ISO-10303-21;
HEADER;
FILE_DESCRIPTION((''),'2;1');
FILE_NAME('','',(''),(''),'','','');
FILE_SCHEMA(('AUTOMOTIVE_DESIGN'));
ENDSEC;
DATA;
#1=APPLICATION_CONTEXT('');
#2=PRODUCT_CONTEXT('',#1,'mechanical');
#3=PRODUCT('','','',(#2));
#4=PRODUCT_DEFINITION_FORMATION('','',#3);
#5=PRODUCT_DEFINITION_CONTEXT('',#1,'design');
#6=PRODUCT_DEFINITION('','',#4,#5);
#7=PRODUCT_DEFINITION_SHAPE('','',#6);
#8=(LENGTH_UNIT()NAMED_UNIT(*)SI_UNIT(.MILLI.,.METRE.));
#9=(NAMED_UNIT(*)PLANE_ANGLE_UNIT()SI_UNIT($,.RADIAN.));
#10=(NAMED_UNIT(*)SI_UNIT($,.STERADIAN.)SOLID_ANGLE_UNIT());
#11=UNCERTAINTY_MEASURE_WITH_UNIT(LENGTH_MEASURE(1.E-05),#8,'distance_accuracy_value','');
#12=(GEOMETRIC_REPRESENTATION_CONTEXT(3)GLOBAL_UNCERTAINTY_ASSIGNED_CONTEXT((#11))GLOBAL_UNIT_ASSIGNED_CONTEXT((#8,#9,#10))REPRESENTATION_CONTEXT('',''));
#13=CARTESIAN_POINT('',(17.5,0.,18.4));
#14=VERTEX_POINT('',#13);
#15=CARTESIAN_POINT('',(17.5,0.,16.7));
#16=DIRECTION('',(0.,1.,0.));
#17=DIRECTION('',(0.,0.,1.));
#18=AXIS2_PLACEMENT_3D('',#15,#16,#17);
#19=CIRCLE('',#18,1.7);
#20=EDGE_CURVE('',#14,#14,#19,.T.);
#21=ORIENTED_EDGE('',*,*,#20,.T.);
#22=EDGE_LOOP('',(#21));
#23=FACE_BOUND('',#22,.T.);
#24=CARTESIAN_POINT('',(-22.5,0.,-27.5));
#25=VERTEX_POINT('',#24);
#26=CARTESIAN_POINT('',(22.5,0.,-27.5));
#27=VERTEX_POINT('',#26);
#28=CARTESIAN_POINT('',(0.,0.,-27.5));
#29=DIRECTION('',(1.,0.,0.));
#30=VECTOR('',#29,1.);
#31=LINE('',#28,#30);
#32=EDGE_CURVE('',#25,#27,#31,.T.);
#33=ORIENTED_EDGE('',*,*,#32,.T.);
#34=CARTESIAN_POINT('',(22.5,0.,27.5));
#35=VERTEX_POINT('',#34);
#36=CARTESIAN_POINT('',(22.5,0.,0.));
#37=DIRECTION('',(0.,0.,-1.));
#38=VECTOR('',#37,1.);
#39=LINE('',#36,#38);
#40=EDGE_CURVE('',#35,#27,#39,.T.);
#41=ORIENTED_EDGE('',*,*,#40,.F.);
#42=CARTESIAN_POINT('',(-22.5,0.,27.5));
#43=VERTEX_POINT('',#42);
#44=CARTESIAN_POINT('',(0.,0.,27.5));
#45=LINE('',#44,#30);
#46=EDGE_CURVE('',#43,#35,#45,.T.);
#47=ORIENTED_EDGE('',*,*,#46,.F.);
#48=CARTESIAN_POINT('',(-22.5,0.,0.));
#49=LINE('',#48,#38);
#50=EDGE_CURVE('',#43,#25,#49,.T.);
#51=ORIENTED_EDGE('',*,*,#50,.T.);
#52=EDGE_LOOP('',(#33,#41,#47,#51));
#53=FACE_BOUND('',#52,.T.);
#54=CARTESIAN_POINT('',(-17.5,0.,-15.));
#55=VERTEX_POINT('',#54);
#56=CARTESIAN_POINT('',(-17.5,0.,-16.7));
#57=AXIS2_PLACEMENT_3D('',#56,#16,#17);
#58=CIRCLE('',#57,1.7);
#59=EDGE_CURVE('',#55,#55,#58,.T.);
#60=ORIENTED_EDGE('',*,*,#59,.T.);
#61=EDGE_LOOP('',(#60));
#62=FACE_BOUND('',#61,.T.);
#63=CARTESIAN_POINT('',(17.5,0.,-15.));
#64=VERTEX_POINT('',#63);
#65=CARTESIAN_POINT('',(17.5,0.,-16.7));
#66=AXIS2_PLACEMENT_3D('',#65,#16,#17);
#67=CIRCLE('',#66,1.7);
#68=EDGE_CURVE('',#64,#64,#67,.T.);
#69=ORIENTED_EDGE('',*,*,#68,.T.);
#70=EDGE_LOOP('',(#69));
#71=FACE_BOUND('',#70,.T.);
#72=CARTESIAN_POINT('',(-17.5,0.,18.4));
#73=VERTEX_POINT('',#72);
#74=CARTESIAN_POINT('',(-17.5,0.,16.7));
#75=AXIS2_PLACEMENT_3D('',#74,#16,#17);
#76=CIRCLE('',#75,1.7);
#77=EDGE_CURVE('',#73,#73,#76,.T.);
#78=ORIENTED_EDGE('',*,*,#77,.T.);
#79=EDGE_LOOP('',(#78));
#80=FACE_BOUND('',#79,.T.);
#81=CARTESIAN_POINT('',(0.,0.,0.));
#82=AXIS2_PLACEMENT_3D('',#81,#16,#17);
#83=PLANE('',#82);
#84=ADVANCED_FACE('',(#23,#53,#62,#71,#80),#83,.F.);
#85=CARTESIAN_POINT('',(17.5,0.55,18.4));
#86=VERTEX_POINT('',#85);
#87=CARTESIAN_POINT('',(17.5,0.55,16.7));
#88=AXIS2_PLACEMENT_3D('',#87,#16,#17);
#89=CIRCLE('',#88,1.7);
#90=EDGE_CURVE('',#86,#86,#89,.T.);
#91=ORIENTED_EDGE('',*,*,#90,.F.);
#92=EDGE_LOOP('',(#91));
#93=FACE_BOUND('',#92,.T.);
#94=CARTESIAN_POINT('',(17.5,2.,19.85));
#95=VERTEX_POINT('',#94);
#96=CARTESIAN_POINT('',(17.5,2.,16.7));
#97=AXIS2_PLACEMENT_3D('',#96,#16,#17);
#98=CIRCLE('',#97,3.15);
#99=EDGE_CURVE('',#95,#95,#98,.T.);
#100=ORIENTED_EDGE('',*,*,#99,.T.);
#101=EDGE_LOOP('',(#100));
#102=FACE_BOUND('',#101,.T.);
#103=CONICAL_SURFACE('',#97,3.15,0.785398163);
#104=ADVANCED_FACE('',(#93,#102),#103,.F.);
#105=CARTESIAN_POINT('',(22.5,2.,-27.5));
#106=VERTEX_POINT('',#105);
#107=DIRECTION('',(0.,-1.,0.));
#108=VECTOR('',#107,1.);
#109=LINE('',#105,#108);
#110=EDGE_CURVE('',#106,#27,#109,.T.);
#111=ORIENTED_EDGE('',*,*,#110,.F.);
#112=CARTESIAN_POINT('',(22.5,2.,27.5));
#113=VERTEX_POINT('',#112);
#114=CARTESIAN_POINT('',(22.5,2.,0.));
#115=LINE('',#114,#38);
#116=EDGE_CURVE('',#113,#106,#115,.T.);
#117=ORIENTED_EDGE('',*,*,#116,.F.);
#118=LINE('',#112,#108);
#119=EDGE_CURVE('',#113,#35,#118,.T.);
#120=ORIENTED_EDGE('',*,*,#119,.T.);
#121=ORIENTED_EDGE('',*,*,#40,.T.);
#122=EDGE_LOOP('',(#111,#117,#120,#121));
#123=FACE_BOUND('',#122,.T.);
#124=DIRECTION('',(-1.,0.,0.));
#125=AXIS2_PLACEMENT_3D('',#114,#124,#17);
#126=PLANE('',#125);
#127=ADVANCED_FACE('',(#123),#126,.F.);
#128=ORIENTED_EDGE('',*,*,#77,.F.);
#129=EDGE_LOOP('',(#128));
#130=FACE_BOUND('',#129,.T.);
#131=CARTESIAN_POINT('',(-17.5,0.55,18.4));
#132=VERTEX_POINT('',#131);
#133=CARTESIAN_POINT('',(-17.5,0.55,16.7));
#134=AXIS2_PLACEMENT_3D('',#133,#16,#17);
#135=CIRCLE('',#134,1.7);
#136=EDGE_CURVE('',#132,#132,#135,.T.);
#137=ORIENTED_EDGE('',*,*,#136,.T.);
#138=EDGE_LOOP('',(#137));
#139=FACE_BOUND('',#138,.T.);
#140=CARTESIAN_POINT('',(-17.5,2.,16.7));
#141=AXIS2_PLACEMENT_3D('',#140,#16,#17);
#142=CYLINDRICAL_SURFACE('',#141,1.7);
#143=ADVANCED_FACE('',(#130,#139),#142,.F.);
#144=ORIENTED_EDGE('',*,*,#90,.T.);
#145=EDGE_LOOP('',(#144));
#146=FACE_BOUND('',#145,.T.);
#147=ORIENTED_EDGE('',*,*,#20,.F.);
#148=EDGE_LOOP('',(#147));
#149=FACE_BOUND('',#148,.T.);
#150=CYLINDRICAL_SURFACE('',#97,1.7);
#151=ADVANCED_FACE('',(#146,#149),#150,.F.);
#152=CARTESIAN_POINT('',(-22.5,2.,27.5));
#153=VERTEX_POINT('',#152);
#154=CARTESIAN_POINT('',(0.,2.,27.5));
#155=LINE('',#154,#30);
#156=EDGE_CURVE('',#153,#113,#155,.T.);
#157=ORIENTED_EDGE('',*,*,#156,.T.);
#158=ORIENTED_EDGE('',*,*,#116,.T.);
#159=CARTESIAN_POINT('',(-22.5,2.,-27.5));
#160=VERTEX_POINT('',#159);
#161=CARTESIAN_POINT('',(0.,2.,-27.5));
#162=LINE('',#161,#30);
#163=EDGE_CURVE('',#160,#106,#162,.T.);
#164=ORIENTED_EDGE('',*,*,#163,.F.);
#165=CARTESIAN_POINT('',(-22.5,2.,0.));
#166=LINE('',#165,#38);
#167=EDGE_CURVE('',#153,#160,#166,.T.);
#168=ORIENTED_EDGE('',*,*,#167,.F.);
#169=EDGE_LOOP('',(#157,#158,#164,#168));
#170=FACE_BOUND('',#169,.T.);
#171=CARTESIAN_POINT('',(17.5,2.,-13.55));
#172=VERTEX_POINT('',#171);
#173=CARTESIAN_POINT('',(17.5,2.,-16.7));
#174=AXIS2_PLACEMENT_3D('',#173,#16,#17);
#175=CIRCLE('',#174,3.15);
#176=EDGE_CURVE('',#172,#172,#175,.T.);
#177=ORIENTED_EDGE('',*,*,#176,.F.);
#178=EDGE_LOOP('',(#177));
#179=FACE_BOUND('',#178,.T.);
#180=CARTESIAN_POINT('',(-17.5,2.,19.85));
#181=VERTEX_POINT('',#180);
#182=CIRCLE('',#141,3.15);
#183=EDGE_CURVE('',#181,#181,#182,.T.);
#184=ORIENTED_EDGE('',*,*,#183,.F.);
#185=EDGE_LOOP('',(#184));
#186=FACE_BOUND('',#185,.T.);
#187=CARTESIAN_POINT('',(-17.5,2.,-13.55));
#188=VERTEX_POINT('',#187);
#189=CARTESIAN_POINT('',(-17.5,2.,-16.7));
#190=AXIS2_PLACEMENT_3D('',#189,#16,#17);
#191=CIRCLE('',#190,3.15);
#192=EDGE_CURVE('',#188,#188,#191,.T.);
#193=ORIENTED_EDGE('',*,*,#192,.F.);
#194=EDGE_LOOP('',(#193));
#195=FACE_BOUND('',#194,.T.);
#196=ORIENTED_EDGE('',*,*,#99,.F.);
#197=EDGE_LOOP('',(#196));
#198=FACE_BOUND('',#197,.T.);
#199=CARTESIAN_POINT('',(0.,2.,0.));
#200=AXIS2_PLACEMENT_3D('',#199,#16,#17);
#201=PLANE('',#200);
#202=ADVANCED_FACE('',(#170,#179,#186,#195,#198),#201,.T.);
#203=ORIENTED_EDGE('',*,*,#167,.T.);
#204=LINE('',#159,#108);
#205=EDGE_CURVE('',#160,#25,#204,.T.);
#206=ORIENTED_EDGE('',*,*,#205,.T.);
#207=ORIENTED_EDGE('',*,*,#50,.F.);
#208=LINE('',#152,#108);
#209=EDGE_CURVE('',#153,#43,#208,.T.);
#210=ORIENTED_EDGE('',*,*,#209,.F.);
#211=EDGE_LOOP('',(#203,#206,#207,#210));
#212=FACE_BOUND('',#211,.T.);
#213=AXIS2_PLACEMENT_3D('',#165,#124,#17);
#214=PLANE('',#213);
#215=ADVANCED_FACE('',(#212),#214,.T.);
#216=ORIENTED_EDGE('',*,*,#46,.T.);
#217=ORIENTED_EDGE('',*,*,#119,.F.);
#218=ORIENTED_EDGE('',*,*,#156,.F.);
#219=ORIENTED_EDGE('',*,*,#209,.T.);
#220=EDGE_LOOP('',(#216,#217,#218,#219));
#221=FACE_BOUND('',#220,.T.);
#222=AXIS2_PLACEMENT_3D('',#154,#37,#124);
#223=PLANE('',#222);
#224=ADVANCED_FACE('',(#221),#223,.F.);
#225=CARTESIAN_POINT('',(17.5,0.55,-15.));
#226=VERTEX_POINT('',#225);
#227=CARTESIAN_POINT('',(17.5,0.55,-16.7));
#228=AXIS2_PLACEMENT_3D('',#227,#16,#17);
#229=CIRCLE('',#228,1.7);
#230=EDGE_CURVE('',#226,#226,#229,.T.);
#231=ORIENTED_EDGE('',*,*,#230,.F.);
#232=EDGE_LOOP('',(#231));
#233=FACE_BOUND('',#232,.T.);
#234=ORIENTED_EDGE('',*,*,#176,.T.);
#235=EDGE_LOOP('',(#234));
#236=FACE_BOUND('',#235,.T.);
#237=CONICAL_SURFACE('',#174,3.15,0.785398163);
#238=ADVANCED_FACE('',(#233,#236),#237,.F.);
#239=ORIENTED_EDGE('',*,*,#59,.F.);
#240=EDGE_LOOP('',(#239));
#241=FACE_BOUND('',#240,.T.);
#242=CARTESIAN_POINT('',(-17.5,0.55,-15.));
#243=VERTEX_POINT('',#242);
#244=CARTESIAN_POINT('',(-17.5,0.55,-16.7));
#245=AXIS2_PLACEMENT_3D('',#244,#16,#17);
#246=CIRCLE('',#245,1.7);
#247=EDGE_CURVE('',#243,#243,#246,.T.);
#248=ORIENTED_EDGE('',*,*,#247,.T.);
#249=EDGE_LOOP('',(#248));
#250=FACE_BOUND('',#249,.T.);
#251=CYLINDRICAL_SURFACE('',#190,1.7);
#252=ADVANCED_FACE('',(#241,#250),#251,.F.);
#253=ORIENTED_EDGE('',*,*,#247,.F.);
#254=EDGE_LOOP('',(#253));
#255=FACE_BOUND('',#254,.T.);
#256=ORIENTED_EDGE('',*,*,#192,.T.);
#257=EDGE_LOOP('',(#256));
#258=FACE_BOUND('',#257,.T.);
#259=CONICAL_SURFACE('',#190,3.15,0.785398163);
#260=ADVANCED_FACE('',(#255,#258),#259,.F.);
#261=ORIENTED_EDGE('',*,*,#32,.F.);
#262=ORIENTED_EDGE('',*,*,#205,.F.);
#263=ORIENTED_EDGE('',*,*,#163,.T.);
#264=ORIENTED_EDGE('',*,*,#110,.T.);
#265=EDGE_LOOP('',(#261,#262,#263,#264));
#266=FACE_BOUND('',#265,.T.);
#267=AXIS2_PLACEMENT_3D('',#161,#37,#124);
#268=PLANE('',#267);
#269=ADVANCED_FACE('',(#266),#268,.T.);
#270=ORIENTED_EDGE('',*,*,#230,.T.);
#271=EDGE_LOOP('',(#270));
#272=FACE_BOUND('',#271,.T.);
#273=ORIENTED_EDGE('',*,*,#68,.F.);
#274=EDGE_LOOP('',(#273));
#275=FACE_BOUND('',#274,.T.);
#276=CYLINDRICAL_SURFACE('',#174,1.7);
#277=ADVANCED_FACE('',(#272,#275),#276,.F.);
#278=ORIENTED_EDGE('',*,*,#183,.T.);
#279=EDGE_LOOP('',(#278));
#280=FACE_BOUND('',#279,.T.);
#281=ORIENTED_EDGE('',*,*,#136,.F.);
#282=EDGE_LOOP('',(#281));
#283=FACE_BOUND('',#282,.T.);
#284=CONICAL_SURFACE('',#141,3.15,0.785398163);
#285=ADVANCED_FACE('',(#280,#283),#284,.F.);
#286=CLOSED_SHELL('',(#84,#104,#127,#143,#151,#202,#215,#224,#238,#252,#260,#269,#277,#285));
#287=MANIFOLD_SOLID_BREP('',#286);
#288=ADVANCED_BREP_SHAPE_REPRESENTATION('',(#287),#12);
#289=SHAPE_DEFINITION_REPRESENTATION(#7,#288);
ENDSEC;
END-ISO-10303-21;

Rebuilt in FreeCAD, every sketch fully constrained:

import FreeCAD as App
import Part
import Sketcher
Q = App.Units.Quantity


def add_polygon(sketch, points):
    """Adds a closed chain of lines whose ends are joined by coincident constraints."""
    first, n = sketch.GeometryCount, len(points)
    for a, b in zip(points, points[1:] + points[:1]):
        sketch.addGeometry(Part.LineSegment(App.Vector(*a, 0), App.Vector(*b, 0)), False)
    for i in range(n):
        sketch.addConstraint(Sketcher.Constraint("Coincident", first + i, 2, first + (i + 1) % n, 1))

doc = App.newDocument("Part")
params = doc.addObject("Spreadsheet::Sheet", "Params")
for row, (alias, value) in enumerate([
    ("sketch1_width", "45 mm"),
    ("sketch1_height", "55 mm"),
    ("pad1_length", "2 mm"),
    ("sketch2_width", "2 mm"),
    ("sketch2_height", "1.7 mm"),
    ("sketch2_width2", "0.55 mm"),
    ("groove_angle", "360 deg"),
    ("linearpattern_pitch", "35 mm"),
    ("linearpattern2_pitch", "48.379334 mm"),
    ("linearpattern3_pitch", "33.4 mm"),
], start=1):
    params.set(f"A{row}", alias)
    params.set(f"B{row}", "=" + value)
    params.setAlias(f"B{row}", alias)

body = doc.addObject("PartDesign::Body", "Body")

sketch1 = body.newObject("Sketcher::SketchObject", "Sketch")
sketch1.AttachmentSupport = (doc.getObject("XZ_Plane"), [""])
sketch1.MapMode = "FlatFace"
add_polygon(sketch1, [(-22, -28), (-22, 28), (22, 28), (22, -28)])
sketch1.addConstraint([
    Sketcher.Constraint("Vertical", 0),
    Sketcher.Constraint("Horizontal", 1),
    Sketcher.Constraint("Vertical", 2),
    Sketcher.Constraint("Horizontal", 3),
    Sketcher.Constraint("Symmetric", 0, 2, 2, 2, -1, 1),
    Sketcher.Constraint("DistanceX", 1, 1, 1, 2, 45.0),
    Sketcher.Constraint("DistanceY", 0, 1, 0, 2, 55.0),
])
sketch1.setExpression("Constraints[9]", "Params.sketch1_width")
sketch1.setExpression("Constraints[10]", "Params.sketch1_height")
pad1 = body.newObject("PartDesign::Pad", "Pad")
pad1.Profile = sketch1
pad1.setExpression("Length", "Params.pad1_length")
pad1.Reversed = True

sketch2 = body.newObject("Sketcher::SketchObject", "Sketch001")
sketch2.AttachmentSupport = (doc.getObject("YZ_Plane"), [""])
sketch2.MapMode = "FlatFace"
sketch2.AttachmentOffset = App.Placement(App.Vector(0, 0, -17.5), App.Rotation())
add_polygon(sketch2, [(0, -16.7), (2, -16.7), (2, -13.6), (0.6, -15), (0, -15)])
sketch2.addGeometry(Part.LineSegment(App.Vector(2, -16.7, 0), App.Vector(0, -16.7, 0)), True)
sketch2.addConstraint([
    Sketcher.Constraint("Horizontal", 0),
    Sketcher.Constraint("Vertical", 1),
    Sketcher.Constraint("Horizontal", 3),
    Sketcher.Constraint("Vertical", 4),
    Sketcher.Constraint("Horizontal", 5),
    Sketcher.Constraint("Coincident", 5, 1, 0, 2),
    Sketcher.Constraint("PointOnObject", 3, 2, -2),
    Sketcher.Constraint("PointOnObject", 5, 2, -2),
    Sketcher.Constraint("DistanceX", 0, 1, 0, 2, 2.0),
    Sketcher.Constraint("Angle", 2, Q("-135 deg")),
    Sketcher.Constraint("DistanceY", 4, 2, 4, 1, 1.7),
    Sketcher.Constraint("DistanceY", 2, 2, -1, 1, 15.0),
    Sketcher.Constraint("DistanceX", 3, 2, 3, 1, 0.55),
])
sketch2.setExpression("Constraints[13]", "Params.sketch2_width")
sketch2.setExpression("Constraints[15]", "Params.sketch2_height")
sketch2.setExpression("Constraints[17]", "Params.sketch2_width2")
groove = body.newObject("PartDesign::Groove", "Groove")
groove.Profile = sketch2
groove.ReferenceAxis = (sketch2, ["Axis0"])
groove.setExpression("Angle", "Params.groove_angle")
doc.recompute()

linearpattern = body.newObject("PartDesign::LinearPattern", "LinearPattern")
linearpattern.Originals = [groove]
linearpattern.Direction = (doc.getObject("X_Axis"), [""])
linearpattern.Mode = "offset"
linearpattern.setExpression("Offset", "Params.linearpattern_pitch")
linearpattern.Occurrences = 2
body.Tip = linearpattern
doc.recompute()

datumline = body.newObject("PartDesign::Line", "DatumLine")
datumline.Placement = App.Placement(App.Vector(0, 0, 0), App.Rotation(App.Vector(0, 0, 1), App.Vector(0.72344939, 0, 0.690377418)))
linearpattern2 = body.newObject("PartDesign::LinearPattern", "LinearPattern001")
linearpattern2.Originals = [groove]
linearpattern2.Direction = (datumline, [""])
linearpattern2.Mode = "offset"
linearpattern2.setExpression("Offset", "Params.linearpattern2_pitch")
linearpattern2.Occurrences = 2
body.Tip = linearpattern2
doc.recompute()

linearpattern3 = body.newObject("PartDesign::LinearPattern", "LinearPattern002")
linearpattern3.Originals = [groove]
linearpattern3.Direction = (doc.getObject("Z_Axis"), [""])
linearpattern3.Mode = "offset"
linearpattern3.setExpression("Offset", "Params.linearpattern3_pitch")
linearpattern3.Occurrences = 2
body.Tip = linearpattern3

doc.recompute()
